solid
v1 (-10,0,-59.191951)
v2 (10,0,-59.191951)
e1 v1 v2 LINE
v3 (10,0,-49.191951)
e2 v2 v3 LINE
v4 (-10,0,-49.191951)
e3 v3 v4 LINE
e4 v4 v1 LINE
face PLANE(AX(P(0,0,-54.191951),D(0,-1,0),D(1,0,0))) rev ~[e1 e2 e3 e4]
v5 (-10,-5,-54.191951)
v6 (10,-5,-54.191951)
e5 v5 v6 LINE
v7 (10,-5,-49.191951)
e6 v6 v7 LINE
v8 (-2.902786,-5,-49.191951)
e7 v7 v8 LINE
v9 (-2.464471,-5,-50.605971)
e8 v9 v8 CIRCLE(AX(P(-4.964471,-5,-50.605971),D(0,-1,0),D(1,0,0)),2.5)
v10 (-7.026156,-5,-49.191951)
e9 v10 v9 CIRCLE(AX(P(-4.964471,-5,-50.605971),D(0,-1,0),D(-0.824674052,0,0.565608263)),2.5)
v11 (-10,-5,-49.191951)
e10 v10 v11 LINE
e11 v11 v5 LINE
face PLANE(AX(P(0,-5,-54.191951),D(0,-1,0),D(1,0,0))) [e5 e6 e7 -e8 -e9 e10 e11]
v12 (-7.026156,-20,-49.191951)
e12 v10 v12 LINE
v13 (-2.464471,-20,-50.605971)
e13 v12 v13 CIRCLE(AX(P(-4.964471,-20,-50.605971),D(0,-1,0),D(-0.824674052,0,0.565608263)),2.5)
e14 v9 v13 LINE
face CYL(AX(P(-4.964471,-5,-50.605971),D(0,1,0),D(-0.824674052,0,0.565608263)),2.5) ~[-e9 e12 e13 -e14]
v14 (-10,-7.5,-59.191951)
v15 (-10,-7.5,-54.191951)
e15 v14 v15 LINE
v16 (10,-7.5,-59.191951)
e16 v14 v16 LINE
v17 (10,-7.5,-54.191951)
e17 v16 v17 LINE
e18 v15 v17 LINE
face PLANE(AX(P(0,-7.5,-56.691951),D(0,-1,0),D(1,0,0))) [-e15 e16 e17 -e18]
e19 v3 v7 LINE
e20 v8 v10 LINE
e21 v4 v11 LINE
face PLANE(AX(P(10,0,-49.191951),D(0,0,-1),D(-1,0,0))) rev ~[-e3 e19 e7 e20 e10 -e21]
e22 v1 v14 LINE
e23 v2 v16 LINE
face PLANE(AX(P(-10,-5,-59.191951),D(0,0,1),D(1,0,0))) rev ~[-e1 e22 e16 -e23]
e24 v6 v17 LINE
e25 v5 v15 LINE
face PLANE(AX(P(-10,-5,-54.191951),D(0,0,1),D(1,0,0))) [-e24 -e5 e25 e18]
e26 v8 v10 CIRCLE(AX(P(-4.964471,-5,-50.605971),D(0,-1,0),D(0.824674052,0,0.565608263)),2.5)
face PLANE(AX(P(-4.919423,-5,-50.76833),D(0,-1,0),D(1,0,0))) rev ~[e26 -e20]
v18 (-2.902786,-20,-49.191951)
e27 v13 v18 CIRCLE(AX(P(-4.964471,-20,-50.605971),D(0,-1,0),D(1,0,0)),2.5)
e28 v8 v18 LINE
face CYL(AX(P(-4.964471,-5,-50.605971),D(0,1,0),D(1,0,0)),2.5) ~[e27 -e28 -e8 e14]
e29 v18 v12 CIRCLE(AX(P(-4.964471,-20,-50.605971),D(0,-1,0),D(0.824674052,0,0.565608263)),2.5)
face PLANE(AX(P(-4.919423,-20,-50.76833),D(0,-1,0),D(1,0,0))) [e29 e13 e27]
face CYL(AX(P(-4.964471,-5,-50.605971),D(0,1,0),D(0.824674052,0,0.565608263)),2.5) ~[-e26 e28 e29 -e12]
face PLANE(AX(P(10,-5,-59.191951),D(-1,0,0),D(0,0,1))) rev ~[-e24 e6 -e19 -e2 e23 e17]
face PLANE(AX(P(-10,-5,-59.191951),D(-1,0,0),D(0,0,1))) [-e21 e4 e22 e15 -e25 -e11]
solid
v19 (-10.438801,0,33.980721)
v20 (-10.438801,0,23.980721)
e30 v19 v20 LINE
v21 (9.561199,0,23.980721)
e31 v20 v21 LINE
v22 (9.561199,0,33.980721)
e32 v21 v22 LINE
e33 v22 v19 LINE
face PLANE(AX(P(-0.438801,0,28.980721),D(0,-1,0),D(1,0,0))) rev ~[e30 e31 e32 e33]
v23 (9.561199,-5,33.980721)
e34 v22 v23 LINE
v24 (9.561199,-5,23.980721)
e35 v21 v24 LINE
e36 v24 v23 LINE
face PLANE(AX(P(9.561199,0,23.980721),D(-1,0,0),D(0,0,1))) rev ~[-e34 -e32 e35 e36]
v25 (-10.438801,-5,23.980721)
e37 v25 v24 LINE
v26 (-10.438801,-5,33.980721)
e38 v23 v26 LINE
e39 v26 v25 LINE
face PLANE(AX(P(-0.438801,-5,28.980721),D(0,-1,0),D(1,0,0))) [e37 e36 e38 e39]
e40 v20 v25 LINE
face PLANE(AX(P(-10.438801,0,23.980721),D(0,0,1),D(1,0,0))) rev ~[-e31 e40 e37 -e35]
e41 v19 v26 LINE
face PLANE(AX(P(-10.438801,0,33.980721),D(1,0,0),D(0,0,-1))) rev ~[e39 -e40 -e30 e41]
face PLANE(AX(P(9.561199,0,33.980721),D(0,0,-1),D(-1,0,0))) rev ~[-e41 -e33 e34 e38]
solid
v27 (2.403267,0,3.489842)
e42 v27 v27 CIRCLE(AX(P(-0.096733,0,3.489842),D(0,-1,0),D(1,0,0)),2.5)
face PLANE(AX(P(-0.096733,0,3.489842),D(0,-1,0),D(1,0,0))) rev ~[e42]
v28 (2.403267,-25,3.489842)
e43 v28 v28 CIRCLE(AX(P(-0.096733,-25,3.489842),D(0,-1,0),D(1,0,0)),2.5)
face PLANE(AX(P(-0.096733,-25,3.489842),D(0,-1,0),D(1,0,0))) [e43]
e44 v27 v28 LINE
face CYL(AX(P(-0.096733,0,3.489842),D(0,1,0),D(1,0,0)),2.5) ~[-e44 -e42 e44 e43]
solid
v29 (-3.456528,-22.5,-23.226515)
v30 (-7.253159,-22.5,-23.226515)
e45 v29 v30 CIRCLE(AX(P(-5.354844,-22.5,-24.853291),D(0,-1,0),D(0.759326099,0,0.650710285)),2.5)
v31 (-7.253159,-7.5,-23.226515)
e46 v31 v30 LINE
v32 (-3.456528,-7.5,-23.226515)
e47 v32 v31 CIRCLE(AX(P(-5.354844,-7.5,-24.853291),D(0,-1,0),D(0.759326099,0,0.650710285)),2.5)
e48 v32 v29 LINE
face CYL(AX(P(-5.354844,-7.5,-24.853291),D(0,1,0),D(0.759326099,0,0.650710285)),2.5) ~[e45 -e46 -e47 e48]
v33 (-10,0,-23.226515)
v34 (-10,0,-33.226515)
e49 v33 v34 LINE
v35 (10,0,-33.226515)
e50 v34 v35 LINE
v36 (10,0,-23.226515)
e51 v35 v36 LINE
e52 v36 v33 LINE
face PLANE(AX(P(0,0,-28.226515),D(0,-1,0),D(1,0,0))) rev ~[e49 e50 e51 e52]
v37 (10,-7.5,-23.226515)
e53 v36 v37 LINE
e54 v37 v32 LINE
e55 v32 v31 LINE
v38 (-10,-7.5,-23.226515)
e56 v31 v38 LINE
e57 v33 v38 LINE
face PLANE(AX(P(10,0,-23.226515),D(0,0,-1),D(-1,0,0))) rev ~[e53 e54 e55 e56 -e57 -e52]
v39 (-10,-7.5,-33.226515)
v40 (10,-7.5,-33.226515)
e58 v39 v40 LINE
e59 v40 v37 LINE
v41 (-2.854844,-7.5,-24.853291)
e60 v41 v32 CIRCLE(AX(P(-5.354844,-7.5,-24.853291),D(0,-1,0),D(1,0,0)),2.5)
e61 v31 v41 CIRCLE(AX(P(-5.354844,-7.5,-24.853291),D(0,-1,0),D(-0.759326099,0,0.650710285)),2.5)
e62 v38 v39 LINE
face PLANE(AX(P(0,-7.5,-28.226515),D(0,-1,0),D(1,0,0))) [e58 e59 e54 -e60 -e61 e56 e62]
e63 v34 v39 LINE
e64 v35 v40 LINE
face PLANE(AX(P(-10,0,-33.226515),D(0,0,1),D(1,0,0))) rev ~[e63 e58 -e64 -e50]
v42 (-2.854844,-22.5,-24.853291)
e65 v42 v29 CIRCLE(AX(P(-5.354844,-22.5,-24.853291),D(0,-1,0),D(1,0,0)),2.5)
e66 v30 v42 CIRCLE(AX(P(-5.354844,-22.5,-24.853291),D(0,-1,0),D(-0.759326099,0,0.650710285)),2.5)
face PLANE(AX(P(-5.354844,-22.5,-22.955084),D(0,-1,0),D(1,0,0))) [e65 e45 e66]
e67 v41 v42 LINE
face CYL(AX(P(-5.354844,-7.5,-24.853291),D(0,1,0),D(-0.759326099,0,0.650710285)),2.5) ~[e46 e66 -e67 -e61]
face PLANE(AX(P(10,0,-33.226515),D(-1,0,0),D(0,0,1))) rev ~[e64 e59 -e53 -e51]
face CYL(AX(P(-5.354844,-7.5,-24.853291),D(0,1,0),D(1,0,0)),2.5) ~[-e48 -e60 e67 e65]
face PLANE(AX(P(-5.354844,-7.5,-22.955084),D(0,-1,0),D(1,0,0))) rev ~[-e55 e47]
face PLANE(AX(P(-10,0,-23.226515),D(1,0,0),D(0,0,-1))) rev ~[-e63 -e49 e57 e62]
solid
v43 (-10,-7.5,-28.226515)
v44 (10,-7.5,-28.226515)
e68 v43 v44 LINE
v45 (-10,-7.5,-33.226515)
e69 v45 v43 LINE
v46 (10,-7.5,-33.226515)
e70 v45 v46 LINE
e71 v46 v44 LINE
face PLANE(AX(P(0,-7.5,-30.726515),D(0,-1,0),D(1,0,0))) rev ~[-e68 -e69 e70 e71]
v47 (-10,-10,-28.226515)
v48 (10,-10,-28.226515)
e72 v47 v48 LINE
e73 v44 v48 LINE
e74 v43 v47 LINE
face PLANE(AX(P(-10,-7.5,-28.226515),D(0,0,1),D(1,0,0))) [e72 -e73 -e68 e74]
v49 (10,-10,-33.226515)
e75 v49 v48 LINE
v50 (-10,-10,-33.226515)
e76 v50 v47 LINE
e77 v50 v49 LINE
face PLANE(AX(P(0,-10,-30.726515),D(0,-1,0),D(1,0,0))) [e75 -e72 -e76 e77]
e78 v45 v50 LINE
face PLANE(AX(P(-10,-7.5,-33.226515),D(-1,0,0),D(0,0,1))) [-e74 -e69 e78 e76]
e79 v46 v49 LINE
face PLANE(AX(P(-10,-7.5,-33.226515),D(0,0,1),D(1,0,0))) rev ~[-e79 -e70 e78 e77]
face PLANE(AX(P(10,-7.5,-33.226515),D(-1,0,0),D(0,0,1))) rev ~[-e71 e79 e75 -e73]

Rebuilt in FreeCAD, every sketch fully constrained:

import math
import FreeCAD as App
import Part
import Sketcher
from FreeCAD import Vector
Q = App.Units.Quantity


def add_polygon(sketch, points):
    """Adds a closed chain of lines whose ends are joined by coincident constraints."""
    first, n = sketch.GeometryCount, len(points)
    for a, b in zip(points, points[1:] + points[:1]):
        sketch.addGeometry(Part.LineSegment(App.Vector(*a, 0), App.Vector(*b, 0)), False)
    for i in range(n):
        sketch.addConstraint(Sketcher.Constraint("Coincident", first + i, 2, first + (i + 1) % n, 1))

doc = App.newDocument("Part")
body = doc.addObject("PartDesign::Body", "Body")

sketch1 = body.newObject("Sketcher::SketchObject", "Sketch")
sketch1.AttachmentSupport = (doc.getObject("XZ_Plane"), [""])
sketch1.MapMode = "FlatFace"
add_polygon(sketch1, [(-10.438801, 33.980721), (-10.438801, 23.980721), (9.561199, 23.980721), (9.561199, 33.980721)])
sketch1.addConstraint([
    Sketcher.Constraint("Vertical", 0),
    Sketcher.Constraint("Horizontal", 1),
    Sketcher.Constraint("Vertical", 2),
    Sketcher.Constraint("Horizontal", 3),
    Sketcher.Constraint("DistanceX", 1, 1, 1, 2, Q("20 mm")),
    Sketcher.Constraint("DistanceY", 0, 2, 0, 1, Q("10 mm")),
    Sketcher.Constraint("DistanceX", 0, 2, -1, 1, Q("10.438801 mm")),
    Sketcher.Constraint("DistanceY", -1, 1, 0, 2, Q("23.980721 mm")),
])
pad1 = body.newObject("PartDesign::Pad", "Pad")
pad1.Profile = sketch1
pad1.Length = 5
body2 = doc.addObject("PartDesign::Body", "Body001")

sketch2 = body2.newObject("Sketcher::SketchObject", "Sketch001")
sketch2.AttachmentSupport = (doc.getObject("XZ_Plane001"), [""])
sketch2.MapMode = "FlatFace"
sketch2.addGeometry(Part.Circle(Vector(-0.096733, 3.489842, 0), Vector(0, 0, 1), 2.5), False)
sketch2.addConstraint([
    Sketcher.Constraint("Diameter", 0, Q("5 mm")),
    Sketcher.Constraint("DistanceX", 0, 3, -1, 1, Q("0.096733 mm")),
    Sketcher.Constraint("DistanceY", -1, 1, 0, 3, Q("3.489842 mm")),
])
pad2 = body2.newObject("PartDesign::Pad", "Pad001")
pad2.Profile = sketch2
pad2.Length = 25
body3 = doc.addObject("PartDesign::Body", "Body002")

sketch3 = body3.newObject("Sketcher::SketchObject", "Sketch002")
sketch3.AttachmentSupport = (doc.getObject("XZ_Plane002"), [""])
sketch3.MapMode = "FlatFace"
add_polygon(sketch3, [(-10, -23.226515), (-10, -33.226515), (10, -33.226515), (10, -23.226515)])
sketch3.addConstraint([
    Sketcher.Constraint("Vertical", 0),
    Sketcher.Constraint("Horizontal", 1),
    Sketcher.Constraint("Vertical", 2),
    Sketcher.Constraint("Horizontal", 3),
    Sketcher.Constraint("DistanceX", 1, 1, 1, 2, Q("20 mm")),
    Sketcher.Constraint("DistanceY", 0, 2, 0, 1, Q("10 mm")),
    Sketcher.Constraint("DistanceX", 0, 2, -1, 1, Q("10 mm")),
    Sketcher.Constraint("DistanceY", 0, 2, -1, 1, Q("33.226515 mm")),
])
pad3 = body3.newObject("PartDesign::Pad", "Pad002")
pad3.Profile = sketch3
pad3.Length = 7.5

sketch4 = body3.newObject("Sketcher::SketchObject", "Sketch003")
sketch4.AttachmentSupport = (doc.getObject("XZ_Plane002"), [""])
sketch4.MapMode = "FlatFace"
sketch4.AttachmentOffset = App.Placement(Vector(0, 0, 7.5), App.Rotation())
sketch4.addGeometry([
    Part.ArcOfCircle(Part.Circle(Vector(-5.354844, -24.853291, 0), Vector(0, 0, 1), 2.5), math.radians(40.595176), math.radians(139.404824)),
    Part.ArcOfCircle(Part.Circle(Vector(-5.354844, -24.853291, 0), Vector(0, 0, 1), 2.5), math.radians(139.404824), math.radians(360)),
    Part.ArcOfCircle(Part.Circle(Vector(-5.354844, -24.853291, 0), Vector(0, 0, 1), 2.5), math.radians(0), math.radians(40.595176)),
], False)
sketch4.addConstraint([
    Sketcher.Constraint("Tangent", 0, 2, 1, 1),
    Sketcher.Constraint("Tangent", 1, 2, 2, 1),
    Sketcher.Constraint("Tangent", 2, 2, 0, 1),
    Sketcher.Constraint("Horizontal", 2, 3, 1, 2),
    Sketcher.Constraint("Horizontal", 0, 2, 2, 2),
    Sketcher.Constraint("Radius", 0, Q("2.5 mm")),
    Sketcher.Constraint("DistanceY", 0, 3, -1, 1, Q("24.853291 mm")),
    Sketcher.Constraint("DistanceX", 0, 2, -1, 1, Q("7.253159 mm")),
    Sketcher.Constraint("DistanceX", 2, 2, -1, 1, Q("3.456528 mm")),
])
pad4 = body3.newObject("PartDesign::Pad", "Pad003")
pad4.Profile = sketch4
pad4.Length = 15
body4 = doc.addObject("PartDesign::Body", "Body003")

sketch5 = body4.newObject("Sketcher::SketchObject", "Sketch004")
sketch5.AttachmentSupport = (doc.getObject("XZ_Plane003"), [""])
sketch5.MapMode = "FlatFace"
add_polygon(sketch5, [(-10, -49.191951), (-10, -59.191951), (10, -59.191951), (10, -49.191951)])
sketch5.addConstraint([
    Sketcher.Constraint("Vertical", 0),
    Sketcher.Constraint("Horizontal", 1),
    Sketcher.Constraint("Vertical", 2),
    Sketcher.Constraint("Horizontal", 3),
    Sketcher.Constraint("DistanceX", 1, 1, 1, 2, Q("20 mm")),
    Sketcher.Constraint("DistanceY", 0, 2, 0, 1, Q("10 mm")),
    Sketcher.Constraint("DistanceX", 0, 2, -1, 1, Q("10 mm")),
    Sketcher.Constraint("DistanceY", 0, 2, -1, 1, Q("59.191951 mm")),
])
pad5 = body4.newObject("PartDesign::Pad", "Pad004")
pad5.Profile = sketch5
pad5.Length = 5

sketch6 = body4.newObject("Sketcher::SketchObject", "Sketch005")
sketch6.AttachmentSupport = (doc.getObject("XZ_Plane003"), [""])
sketch6.MapMode = "FlatFace"
sketch6.AttachmentOffset = App.Placement(Vector(0, 0, 5), App.Rotation())
add_polygon(sketch6, [(-10, -54.191951), (-10, -59.191951), (10, -59.191951), (10, -54.191951)])
sketch6.addConstraint([
    Sketcher.Constraint("Vertical", 0),
    Sketcher.Constraint("Horizontal", 1),
    Sketcher.Constraint("Vertical", 2),
    Sketcher.Constraint("Horizontal", 3),
    Sketcher.Constraint("DistanceX", 1, 1, 1, 2, Q("20 mm")),
    Sketcher.Constraint("DistanceY", 0, 2, 0, 1, Q("5 mm")),
    Sketcher.Constraint("DistanceX", 0, 2, -1, 1, Q("10 mm")),
    Sketcher.Constraint("DistanceY", 0, 2, -1, 1, Q("59.191951 mm")),
])
pad6 = body4.newObject("PartDesign::Pad", "Pad005")
pad6.Profile = sketch6
pad6.Length = 2.5

sketch7 = body4.newObject("Sketcher::SketchObject", "Sketch006")
sketch7.AttachmentSupport = (doc.getObject("XZ_Plane003"), [""])
sketch7.MapMode = "FlatFace"
sketch7.AttachmentOffset = App.Placement(Vector(0, 0, 5), App.Rotation())
sketch7.addGeometry([
    Part.ArcOfCircle(Part.Circle(Vector(-4.964471, -50.605971, 0), Vector(0, 0, 1), 2.5), math.radians(145.555459), math.radians(360)),
    Part.ArcOfCircle(Part.Circle(Vector(-4.964471, -50.605971, 0), Vector(0, 0, 1), 2.5), math.radians(0), math.radians(34.444541)),
    Part.ArcOfCircle(Part.Circle(Vector(-4.964471, -50.605971, 0), Vector(0, 0, 1), 2.5), math.radians(34.444541), math.radians(145.555459)),
], False)
sketch7.addConstraint([
    Sketcher.Constraint("Tangent", 0, 2, 1, 1),
    Sketcher.Constraint("Tangent", 1, 2, 2, 1),
    Sketcher.Constraint("Tangent", 2, 2, 0, 1),
    Sketcher.Constraint("Horizontal", 2, 3, 0, 2),
    Sketcher.Constraint("Horizontal", 1, 2, 2, 2),
    Sketcher.Constraint("Radius", 0, Q("2.5 mm")),
    Sketcher.Constraint("DistanceX", 0, 3, -1, 1, Q("4.964471 mm")),
    Sketcher.Constraint("DistanceY", 0, 3, -1, 1, Q("50.605971 mm")),
    Sketcher.Constraint("DistanceY", 1, 2, -1, 1, Q("49.191951 mm")),
])
pad7 = body4.newObject("PartDesign::Pad", "Pad006")
pad7.Profile = sketch7
pad7.Length = 15
body5 = doc.addObject("PartDesign::Body", "Body004")

sketch8 = body5.newObject("Sketcher::SketchObject", "Sketch007")
sketch8.AttachmentSupport = (doc.getObject("XZ_Plane004"), [""])
sketch8.MapMode = "FlatFace"
sketch8.AttachmentOffset = App.Placement(Vector(0, 0, 7.5), App.Rotation())
add_polygon(sketch8, [(-10, -28.226515), (-10, -33.226515), (10, -33.226515), (10, -28.226515)])
sketch8.addConstraint([
    Sketcher.Constraint("Vertical", 0),
    Sketcher.Constraint("Horizontal", 1),
    Sketcher.Constraint("Vertical", 2),
    Sketcher.Constraint("Horizontal", 3),
    Sketcher.Constraint("DistanceX", 1, 1, 1, 2, Q("20 mm")),
    Sketcher.Constraint("DistanceY", 0, 2, 0, 1, Q("5 mm")),
    Sketcher.Constraint("DistanceX", 0, 2, -1, 1, Q("10 mm")),
    Sketcher.Constraint("DistanceY", 0, 2, -1, 1, Q("33.226515 mm")),
])
pad8 = body5.newObject("PartDesign::Pad", "Pad007")
pad8.Profile = sketch8
pad8.Length = 2.5

doc.recompute()
